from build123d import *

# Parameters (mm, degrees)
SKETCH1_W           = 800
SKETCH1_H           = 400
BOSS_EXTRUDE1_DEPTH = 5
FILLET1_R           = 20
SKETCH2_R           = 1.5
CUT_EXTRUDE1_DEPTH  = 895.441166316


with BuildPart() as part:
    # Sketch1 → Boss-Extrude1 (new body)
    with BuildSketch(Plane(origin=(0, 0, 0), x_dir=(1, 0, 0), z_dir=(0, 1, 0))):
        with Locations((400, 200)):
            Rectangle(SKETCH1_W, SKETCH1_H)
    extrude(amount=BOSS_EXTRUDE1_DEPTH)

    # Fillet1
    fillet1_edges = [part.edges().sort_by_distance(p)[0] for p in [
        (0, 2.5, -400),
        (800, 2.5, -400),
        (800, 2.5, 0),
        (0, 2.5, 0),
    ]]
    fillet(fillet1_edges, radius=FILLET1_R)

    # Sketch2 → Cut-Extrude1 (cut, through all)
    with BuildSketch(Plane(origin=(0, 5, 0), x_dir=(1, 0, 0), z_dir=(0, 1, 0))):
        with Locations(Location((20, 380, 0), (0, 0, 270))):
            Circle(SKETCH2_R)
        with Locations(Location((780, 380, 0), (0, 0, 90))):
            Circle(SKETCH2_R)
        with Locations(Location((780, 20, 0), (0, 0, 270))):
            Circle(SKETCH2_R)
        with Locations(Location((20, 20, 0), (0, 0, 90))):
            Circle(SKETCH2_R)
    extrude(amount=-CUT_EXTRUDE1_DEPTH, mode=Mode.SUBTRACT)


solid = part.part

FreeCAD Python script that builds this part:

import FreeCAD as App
import Part
import Sketcher

V = App.Vector
Q = App.Units.Quantity


def edges_at(feature, points):
    """Names of the edges that pass closest to the given points."""
    edges = feature.Shape.Edges
    near = lambda p: min(range(len(edges)), key=lambda i: edges[i].distToShape(Part.Vertex(*p))[0])
    return sorted({f"Edge{near(p) + 1}" for p in points})


def add_polygon(sketch, points):
    """Adds a closed chain of lines whose ends are joined by coincident constraints."""
    first, n = sketch.GeometryCount, len(points)
    for a, b in zip(points, points[1:] + points[:1]):
        sketch.addGeometry(Part.LineSegment(App.Vector(*a, 0), App.Vector(*b, 0)), False)
    for i in range(n):
        sketch.addConstraint(Sketcher.Constraint("Coincident", first + i, 2, first + (i + 1) % n, 1))

doc = App.newDocument("Part")
params = doc.addObject("Spreadsheet::Sheet", "Params")
for row, (alias, value) in enumerate([
    ("sketch1_width", "800 mm"),
    ("sketch1_height", "400 mm"),
    ("pad1_length", "5 mm"),
    ("fillet_radius", "20 mm"),
    ("sketch2_diameter", "3 mm"),
], start=1):
    params.set(f"A{row}", alias)
    params.set(f"B{row}", "=" + value)
    params.setAlias(f"B{row}", alias)

body = doc.addObject("PartDesign::Body", "Body")

sketch1 = body.newObject("Sketcher::SketchObject", "Sketch")
sketch1.AttachmentSupport = (doc.getObject("XZ_Plane"), [""])
sketch1.MapMode = "FlatFace"
add_polygon(sketch1, [(0, -400), (0, 0), (800, 0), (800, -400)])
sketch1.addConstraint(Sketcher.Constraint("Vertical", 0))
sketch1.addConstraint(Sketcher.Constraint("Horizontal", 1))
sketch1.addConstraint(Sketcher.Constraint("Vertical", 2))
sketch1.addConstraint(Sketcher.Constraint("Horizontal", 3))
sketch1.addConstraint(Sketcher.Constraint("Coincident", 0, 2, -1, 1))
sketch1.addConstraint(Sketcher.Constraint("DistanceX", 1, 1, 1, 2, Q("800 mm")))
sketch1.addConstraint(Sketcher.Constraint("DistanceY", 0, 1, 0, 2, Q("400 mm")))
sketch1.setExpression("Constraints[9]", "Params.sketch1_width")
sketch1.setExpression("Constraints[10]", "Params.sketch1_height")
pad1 = body.newObject("PartDesign::Pad", "Pad")
pad1.Profile = sketch1
pad1.setExpression("Length", "Params.pad1_length")
pad1.Reversed = True
doc.recompute()

fillet = body.newObject("PartDesign::Fillet", "Fillet")
fillet.Base = (pad1, edges_at(pad1, [
    (0, 2.5, -400),
    (800, 2.5, -400),
    (800, 2.5, 0),
    (0, 2.5, 0),
]))
fillet.setExpression("Radius", "Params.fillet_radius")

sketch2 = body.newObject("Sketcher::SketchObject", "Sketch001")
sketch2.AttachmentSupport = (doc.getObject("XZ_Plane"), [""])
sketch2.MapMode = "FlatFace"
sketch2.AttachmentOffset = App.Placement(V(0, 0, -5), App.Rotation())
sketch2.addGeometry(Part.Circle(V(20, -380, 0), V(0, 0, 1), 1.5), False)
sketch2.addGeometry(Part.Circle(V(780, -380, 0), V(0, 0, 1), 1.5), False)
sketch2.addGeometry(Part.Circle(V(780, -20, 0), V(0, 0, 1), 1.5), False)
sketch2.addGeometry(Part.Circle(V(20, -20, 0), V(0, 0, 1), 1.5), False)
sketch2.addConstraint(Sketcher.Constraint("Equal", 0, 1))
sketch2.addConstraint(Sketcher.Constraint("Equal", 1, 2))
sketch2.addConstraint(Sketcher.Constraint("Equal", 2, 3))
sketch2.addConstraint(Sketcher.Constraint("Horizontal", 0, 3, 1, 3))
sketch2.addConstraint(Sketcher.Constraint("Horizontal", 2, 3, 3, 3))
sketch2.addConstraint(Sketcher.Constraint("Vertical", 1, 3, 2, 3))
sketch2.addConstraint(Sketcher.Constraint("Vertical", 0, 3, 3, 3))
sketch2.addConstraint(Sketcher.Constraint("Diameter", 0, Q("3 mm")))
sketch2.addConstraint(Sketcher.Constraint("DistanceX", -1, 1, 0, 3, Q("20 mm")))
sketch2.addConstraint(Sketcher.Constraint("DistanceY", 0, 3, -1, 1, Q("380 mm")))
sketch2.addConstraint(Sketcher.Constraint("DistanceX", -1, 1, 1, 3, Q("780 mm")))
sketch2.addConstraint(Sketcher.Constraint("DistanceY", 2, 3, -1, 1, Q("20 mm")))
sketch2.setExpression("Constraints[7]", "Params.sketch2_diameter")
pocket1 = body.newObject("PartDesign::Pocket", "Pocket")
pocket1.Profile = sketch2
pocket1.Type = "ThroughAll"
pocket1.Reversed = True

doc.recompute()
